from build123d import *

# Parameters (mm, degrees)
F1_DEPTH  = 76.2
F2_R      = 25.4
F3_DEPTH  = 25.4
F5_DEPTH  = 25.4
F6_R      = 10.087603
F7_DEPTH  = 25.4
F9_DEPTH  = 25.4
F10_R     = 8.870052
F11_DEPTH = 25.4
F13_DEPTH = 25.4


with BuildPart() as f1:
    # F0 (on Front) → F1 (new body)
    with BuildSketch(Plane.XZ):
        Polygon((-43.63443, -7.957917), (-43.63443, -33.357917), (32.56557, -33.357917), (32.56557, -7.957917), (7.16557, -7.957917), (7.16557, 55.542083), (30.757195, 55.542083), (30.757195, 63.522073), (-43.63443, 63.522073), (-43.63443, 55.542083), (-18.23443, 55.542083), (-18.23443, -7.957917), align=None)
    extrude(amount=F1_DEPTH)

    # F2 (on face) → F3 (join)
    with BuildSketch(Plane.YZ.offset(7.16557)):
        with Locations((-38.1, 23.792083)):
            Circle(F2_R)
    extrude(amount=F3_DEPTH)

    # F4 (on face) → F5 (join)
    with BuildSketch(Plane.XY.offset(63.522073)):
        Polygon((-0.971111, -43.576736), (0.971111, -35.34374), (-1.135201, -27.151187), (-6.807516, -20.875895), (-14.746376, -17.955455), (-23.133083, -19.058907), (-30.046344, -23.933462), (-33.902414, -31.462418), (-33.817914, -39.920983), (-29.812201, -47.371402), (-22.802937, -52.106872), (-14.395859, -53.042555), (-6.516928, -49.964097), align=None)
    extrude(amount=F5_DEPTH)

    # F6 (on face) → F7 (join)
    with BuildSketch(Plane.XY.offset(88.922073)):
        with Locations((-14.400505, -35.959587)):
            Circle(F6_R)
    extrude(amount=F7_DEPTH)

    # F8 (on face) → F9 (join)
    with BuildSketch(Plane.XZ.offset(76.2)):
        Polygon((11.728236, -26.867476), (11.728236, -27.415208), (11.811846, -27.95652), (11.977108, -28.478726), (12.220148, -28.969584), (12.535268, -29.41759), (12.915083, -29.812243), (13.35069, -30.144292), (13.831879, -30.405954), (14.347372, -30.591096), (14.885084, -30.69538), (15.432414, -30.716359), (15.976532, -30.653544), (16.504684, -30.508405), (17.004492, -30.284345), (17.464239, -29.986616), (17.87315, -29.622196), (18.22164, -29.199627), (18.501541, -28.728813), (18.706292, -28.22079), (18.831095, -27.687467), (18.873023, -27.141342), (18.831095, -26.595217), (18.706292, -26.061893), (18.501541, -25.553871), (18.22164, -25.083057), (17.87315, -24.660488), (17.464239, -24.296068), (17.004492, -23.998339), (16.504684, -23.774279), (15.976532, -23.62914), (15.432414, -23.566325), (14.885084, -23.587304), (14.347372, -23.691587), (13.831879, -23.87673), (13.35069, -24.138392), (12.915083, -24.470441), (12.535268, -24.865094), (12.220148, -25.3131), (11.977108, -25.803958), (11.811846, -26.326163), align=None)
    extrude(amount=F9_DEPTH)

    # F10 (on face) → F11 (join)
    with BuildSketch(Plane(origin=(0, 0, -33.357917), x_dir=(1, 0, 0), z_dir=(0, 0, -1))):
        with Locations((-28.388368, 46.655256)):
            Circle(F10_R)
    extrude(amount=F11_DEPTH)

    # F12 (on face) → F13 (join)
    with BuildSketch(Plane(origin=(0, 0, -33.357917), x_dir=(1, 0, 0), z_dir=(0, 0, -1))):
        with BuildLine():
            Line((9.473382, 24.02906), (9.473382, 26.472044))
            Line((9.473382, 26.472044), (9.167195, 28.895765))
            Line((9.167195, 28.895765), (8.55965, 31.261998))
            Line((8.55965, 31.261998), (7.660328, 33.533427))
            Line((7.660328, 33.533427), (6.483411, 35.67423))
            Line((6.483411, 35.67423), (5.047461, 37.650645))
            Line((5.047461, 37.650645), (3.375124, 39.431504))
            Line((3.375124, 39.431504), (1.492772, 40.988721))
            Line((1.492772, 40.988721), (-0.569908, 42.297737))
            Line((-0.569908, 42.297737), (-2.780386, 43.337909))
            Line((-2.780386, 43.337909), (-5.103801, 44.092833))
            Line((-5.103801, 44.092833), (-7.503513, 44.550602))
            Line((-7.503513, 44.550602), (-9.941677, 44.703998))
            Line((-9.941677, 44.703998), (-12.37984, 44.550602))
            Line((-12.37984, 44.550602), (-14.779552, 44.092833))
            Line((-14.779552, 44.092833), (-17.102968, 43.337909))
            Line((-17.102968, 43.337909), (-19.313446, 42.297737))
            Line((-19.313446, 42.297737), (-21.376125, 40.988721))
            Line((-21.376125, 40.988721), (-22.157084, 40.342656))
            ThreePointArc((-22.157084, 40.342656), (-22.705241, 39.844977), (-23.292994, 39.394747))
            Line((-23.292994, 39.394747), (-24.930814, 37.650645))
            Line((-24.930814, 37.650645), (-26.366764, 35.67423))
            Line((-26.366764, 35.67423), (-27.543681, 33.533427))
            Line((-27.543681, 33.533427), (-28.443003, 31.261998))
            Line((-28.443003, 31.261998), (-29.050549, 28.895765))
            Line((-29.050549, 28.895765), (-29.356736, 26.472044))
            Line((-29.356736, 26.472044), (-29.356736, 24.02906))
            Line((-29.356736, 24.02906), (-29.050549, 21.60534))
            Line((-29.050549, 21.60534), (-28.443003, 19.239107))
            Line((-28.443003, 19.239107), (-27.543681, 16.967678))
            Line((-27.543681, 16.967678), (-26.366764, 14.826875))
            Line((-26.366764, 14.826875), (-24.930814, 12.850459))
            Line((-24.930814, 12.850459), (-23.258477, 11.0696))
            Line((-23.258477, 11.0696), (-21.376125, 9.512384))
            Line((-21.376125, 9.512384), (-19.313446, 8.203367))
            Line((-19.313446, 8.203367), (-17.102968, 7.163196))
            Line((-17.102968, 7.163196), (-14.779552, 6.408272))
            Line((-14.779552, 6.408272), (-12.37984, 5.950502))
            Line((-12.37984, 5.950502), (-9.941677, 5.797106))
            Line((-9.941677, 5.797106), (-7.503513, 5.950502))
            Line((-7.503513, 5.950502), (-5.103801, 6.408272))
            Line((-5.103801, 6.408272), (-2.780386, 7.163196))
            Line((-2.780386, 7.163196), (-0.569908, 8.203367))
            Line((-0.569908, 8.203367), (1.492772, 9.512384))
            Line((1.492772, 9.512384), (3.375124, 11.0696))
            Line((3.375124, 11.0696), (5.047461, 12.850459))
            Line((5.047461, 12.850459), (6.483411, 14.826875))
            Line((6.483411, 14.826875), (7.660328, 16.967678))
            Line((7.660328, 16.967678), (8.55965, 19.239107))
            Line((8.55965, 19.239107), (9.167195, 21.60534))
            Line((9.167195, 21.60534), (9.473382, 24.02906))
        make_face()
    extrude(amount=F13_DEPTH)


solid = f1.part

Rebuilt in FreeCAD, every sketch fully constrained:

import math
import FreeCAD as App
import Part
import Sketcher
from FreeCAD import Vector
Q = App.Units.Quantity

doc = App.newDocument("Part")
body = doc.addObject("PartDesign::Body", "Body")

# Sketch on XZ plane
sketch1 = body.newObject("Sketcher::SketchObject", "Sketch")
sketch1.AttachmentSupport = (doc.getObject("XZ_Plane"), [""])
sketch1.MapMode = "FlatFace"
sketch1.addGeometry([
    Part.LineSegment(Vector(-43.63443, -7.957917, 0), Vector(-43.63443, -33.357917, 0)),  # 0
    Part.LineSegment(Vector(-43.63443, -33.357917, 0), Vector(32.56557, -33.357917, 0)),  # 1
    Part.LineSegment(Vector(32.56557, -33.357917, 0), Vector(32.56557, -7.957917, 0)),  # 2
    Part.LineSegment(Vector(32.56557, -7.957917, 0), Vector(7.16557, -7.957917, 0)),  # 3
    Part.LineSegment(Vector(7.16557, -7.957917, 0), Vector(7.16557, 55.542083, 0)),  # 4
    Part.LineSegment(Vector(7.16557, 55.542083, 0), Vector(30.757195, 55.542083, 0)),  # 5
    Part.LineSegment(Vector(30.757195, 55.542083, 0), Vector(30.757195, 63.522073, 0)),  # 6
    Part.LineSegment(Vector(30.757195, 63.522073, 0), Vector(-43.63443, 63.522073, 0)),  # 7
    Part.LineSegment(Vector(-43.63443, 63.522073, 0), Vector(-43.63443, 55.542083, 0)),  # 8
    Part.LineSegment(Vector(-43.63443, 55.542083, 0), Vector(-18.23443, 55.542083, 0)),  # 9
    Part.LineSegment(Vector(-18.23443, 55.542083, 0), Vector(-18.23443, -7.957917, 0)),  # 10
    Part.LineSegment(Vector(-18.23443, -7.957917, 0), Vector(-43.63443, -7.957917, 0)),  # 11
], False)
sketch1.addConstraint([
    Sketcher.Constraint("Coincident", 0, 2, 1, 1),
    Sketcher.Constraint("Coincident", 1, 2, 2, 1),
    Sketcher.Constraint("Coincident", 2, 2, 3, 1),
    Sketcher.Constraint("Coincident", 3, 2, 4, 1),
    Sketcher.Constraint("Coincident", 4, 2, 5, 1),
    Sketcher.Constraint("Coincident", 5, 2, 6, 1),
    Sketcher.Constraint("Coincident", 6, 2, 7, 1),
    Sketcher.Constraint("Coincident", 7, 2, 8, 1),
    Sketcher.Constraint("Coincident", 8, 2, 9, 1),
    Sketcher.Constraint("Coincident", 9, 2, 10, 1),
    Sketcher.Constraint("Coincident", 10, 2, 11, 1),
    Sketcher.Constraint("Coincident", 11, 2, 0, 1),
    Sketcher.Constraint("Vertical", 0),
    Sketcher.Constraint("Horizontal", 1),
    Sketcher.Constraint("Vertical", 2),
    Sketcher.Constraint("Horizontal", 3),
    Sketcher.Constraint("Vertical", 4),
    Sketcher.Constraint("Horizontal", 5),
    Sketcher.Constraint("Vertical", 6),
    Sketcher.Constraint("Horizontal", 7),
    Sketcher.Constraint("Vertical", 8),
    Sketcher.Constraint("Horizontal", 9),
    Sketcher.Constraint("Vertical", 10),
    Sketcher.Constraint("Horizontal", 11),
    Sketcher.Constraint("Horizontal", 5, 2, 8, 2),
    Sketcher.Constraint("Horizontal", 3, 2, 10, 2),
    Sketcher.Constraint("Vertical", 0, 2, 7, 2),
    Sketcher.Constraint("Equal", 3, 9),
    Sketcher.Constraint("Equal", 11, 0),
    Sketcher.Constraint("DistanceX", 1, 1, 1, 2, Q("3 in")),
    Sketcher.Constraint("DistanceX", 3, 2, 3, 1, Q("1 in")),
    Sketcher.Constraint("DistanceY", 4, 1, 4, 2, Q("2.5 in")),
    Sketcher.Constraint("DistanceY", 6, 1, 6, 2, Q("7.97999 mm")),
    Sketcher.Constraint("DistanceX", 5, 1, 5, 2, Q("23.591625 mm")),
    Sketcher.Constraint("DistanceX", 0, 2, -1, 1, Q("43.63443 mm")),
    Sketcher.Constraint("DistanceY", 0, 2, -1, 1, Q("33.357917 mm")),
])
pad1 = body.newObject("PartDesign::Pad", "Pad")
pad1.Profile = sketch1
pad1.Length = Q("3 in")

# Sketch on YZ plane
sketch2 = body.newObject("Sketcher::SketchObject", "Sketch001")
sketch2.AttachmentSupport = (doc.getObject("YZ_Plane"), [""])
sketch2.MapMode = "FlatFace"
sketch2.AttachmentOffset = App.Placement(Vector(0, 0, 7.16557), App.Rotation())
sketch2.addGeometry(Part.Circle(Vector(-38.1, 23.792083, 0), Vector(0, 0, 1), 25.4), False)
sketch2.addConstraint([
    Sketcher.Constraint("Diameter", 0, Q("2 in")),
    Sketcher.Constraint("DistanceX", 0, 3, -1, 1, Q("1.5 in")),
    Sketcher.Constraint("DistanceY", -1, 1, 0, 3, Q("23.792083 mm")),
])
pad2 = body.newObject("PartDesign::Pad", "Pad001")
pad2.Profile = sketch2
pad2.Length = Q("1 in")

# Sketch on XY plane
sketch3 = body.newObject("Sketcher::SketchObject", "Sketch002")
sketch3.AttachmentSupport = (doc.getObject("XY_Plane"), [""])
sketch3.MapMode = "FlatFace"
sketch3.AttachmentOffset = App.Placement(Vector(0, 0, 63.522073), App.Rotation())
sketch3.addGeometry([
    Part.LineSegment(Vector(-0.971111, -43.576736, 0), Vector(0.971111, -35.34374, 0)),  # 0
    Part.LineSegment(Vector(0.971111, -35.34374, 0), Vector(-1.135201, -27.151187, 0)),  # 1
    Part.LineSegment(Vector(-1.135201, -27.151187, 0), Vector(-6.807516, -20.875895, 0)),  # 2
    Part.LineSegment(Vector(-6.807516, -20.875895, 0), Vector(-14.746376, -17.955455, 0)),  # 3
    Part.LineSegment(Vector(-14.746376, -17.955455, 0), Vector(-23.133083, -19.058907, 0)),  # 4
    Part.LineSegment(Vector(-23.133083, -19.058907, 0), Vector(-30.046344, -23.933462, 0)),  # 5
    Part.LineSegment(Vector(-30.046344, -23.933462, 0), Vector(-33.902414, -31.462418, 0)),  # 6
    Part.LineSegment(Vector(-33.902414, -31.462418, 0), Vector(-33.817914, -39.920983, 0)),  # 7
    Part.LineSegment(Vector(-33.817914, -39.920983, 0), Vector(-29.812201, -47.371402, 0)),  # 8
    Part.LineSegment(Vector(-29.812201, -47.371402, 0), Vector(-22.802937, -52.106872, 0)),  # 9
    Part.LineSegment(Vector(-22.802937, -52.106872, 0), Vector(-14.395859, -53.042555, 0)),  # 10
    Part.LineSegment(Vector(-14.395859, -53.042555, 0), Vector(-6.516928, -49.964097, 0)),  # 11
    Part.LineSegment(Vector(-6.516928, -49.964097, 0), Vector(-0.971111, -43.576736, 0)),  # 12
], False)
sketch3.addConstraint([
    Sketcher.Constraint("Coincident", 0, 2, 1, 1),
    Sketcher.Constraint("Coincident", 1, 2, 2, 1),
    Sketcher.Constraint("Coincident", 2, 2, 3, 1),
    Sketcher.Constraint("Coincident", 3, 2, 4, 1),
    Sketcher.Constraint("Coincident", 4, 2, 5, 1),
    Sketcher.Constraint("Coincident", 5, 2, 6, 1),
    Sketcher.Constraint("Coincident", 6, 2, 7, 1),
    Sketcher.Constraint("Coincident", 7, 2, 8, 1),
    Sketcher.Constraint("Coincident", 8, 2, 9, 1),
    Sketcher.Constraint("Coincident", 9, 2, 10, 1),
    Sketcher.Constraint("Coincident", 10, 2, 11, 1),
    Sketcher.Constraint("Coincident", 11, 2, 12, 1),
    Sketcher.Constraint("Coincident", 12, 2, 0, 1),
    Sketcher.Constraint("DistanceY", 0, 2, 2, 2, Q("0.5696002 in")),
    Sketcher.Constraint("DistanceX", 1, 2, -1, 1, Q("1.135201 mm")),
    Sketcher.Constraint("DistanceX", 8, 2, -1, 1, Q("29.812201 mm")),
    Sketcher.Constraint("DistanceX", 6, 2, 2, 2, Q("27.094898 mm")),
    Sketcher.Constraint("DistanceX", 6, 2, 7, 2, Q("0.0845 mm")),
    Sketcher.Constraint("Distance", 8, Q("8.458988 mm")),
    Sketcher.Constraint("DistanceX", -1, 1, 0, 2, Q("0.971111 mm")),
    Sketcher.Constraint("DistanceY", 0, 2, -1, 1, Q("35.34374 mm")),
    Sketcher.Constraint("DistanceY", 5, 2, -1, 1, Q("23.933462 mm")),
    Sketcher.Constraint("DistanceX", 10, 2, -1, 1, Q("14.395859 mm")),
    Sketcher.Constraint("DistanceX", 12, 2, -1, 1, Q("0.971111 mm")),
    Sketcher.Constraint("DistanceX", 3, 2, 2, 2, Q("7.93886 mm")),
    Sketcher.Constraint("DistanceY", 2, 2, 3, 2, Q("2.92044 mm")),
    Sketcher.Constraint("DistanceY", 1, 2, 4, 2, Q("8.09228 mm")),
    Sketcher.Constraint("DistanceX", 5, 2, 4, 2, Q("6.913261 mm")),
    Sketcher.Constraint("DistanceX", 5, 2, 3, 2, Q("15.299968 mm")),
    Sketcher.Constraint("DistanceY", 6, 2, 4, 2, Q("12.403511 mm")),
    Sketcher.Constraint("DistanceY", 7, 2, 5, 2, Q("15.987521 mm")),
    Sketcher.Constraint("DistanceY", 8, 2, 7, 2, Q("7.450419 mm")),
    Sketcher.Constraint("DistanceY", 9, 2, 8, 2, Q("4.73547 mm")),
    Sketcher.Constraint("DistanceX", 9, 2, 0, 2, Q("23.774048 mm")),
    Sketcher.Constraint("DistanceY", 10, 2, 1, 2, Q("25.891368 mm")),
    Sketcher.Constraint("DistanceX", 10, 2, 11, 2, Q("7.878931 mm")),
    Sketcher.Constraint("DistanceY", 11, 2, 1, 2, Q("22.81291 mm")),
    Sketcher.Constraint("DistanceY", 11, 2, 12, 2, Q("6.387361 mm")),
    Sketcher.Constraint("DistanceY", 12, 2, 2, 2, Q("22.700841 mm")),
])
pad3 = body.newObject("PartDesign::Pad", "Pad002")
pad3.Profile = sketch3
pad3.Length = Q("1 in")

# Sketch on XY plane
sketch4 = body.newObject("Sketcher::SketchObject", "Sketch003")
sketch4.AttachmentSupport = (doc.getObject("XY_Plane"), [""])
sketch4.MapMode = "FlatFace"
sketch4.AttachmentOffset = App.Placement(Vector(0, 0, 88.922073), App.Rotation())
sketch4.addGeometry(Part.Circle(Vector(-14.400505, -35.959587, 0), Vector(0, 0, 1), 10.087603), False)
sketch4.addConstraint([
    Sketcher.Constraint("Diameter", 0, Q("20.175206 mm")),
    Sketcher.Constraint("DistanceX", 0, 3, -1, 1, Q("14.400505 mm")),
    Sketcher.Constraint("DistanceY", 0, 3, -1, 1, Q("35.959587 mm")),
])
pad4 = body.newObject("PartDesign::Pad", "Pad003")
pad4.Profile = sketch4
pad4.Length = Q("1 in")

# Sketch on XZ plane
sketch5 = body.newObject("Sketcher::SketchObject", "Sketch004")
sketch5.AttachmentSupport = (doc.getObject("XZ_Plane"), [""])
sketch5.MapMode = "FlatFace"
sketch5.AttachmentOffset = App.Placement(Vector(0, 0, 3 * 25.4), App.Rotation())
sketch5.addGeometry([
    Part.LineSegment(Vector(11.728236, -26.867476, 0), Vector(11.728236, -27.415208, 0)),  # 0
    Part.LineSegment(Vector(11.728236, -27.415208, 0), Vector(11.811846, -27.95652, 0)),  # 1
    Part.LineSegment(Vector(11.811846, -27.95652, 0), Vector(11.977108, -28.478726, 0)),  # 2
    Part.LineSegment(Vector(11.977108, -28.478726, 0), Vector(12.220148, -28.969584, 0)),  # 3
    Part.LineSegment(Vector(12.220148, -28.969584, 0), Vector(12.535268, -29.41759, 0)),  # 4
    Part.LineSegment(Vector(12.535268, -29.41759, 0), Vector(12.915083, -29.812243, 0)),  # 5
    Part.LineSegment(Vector(12.915083, -29.812243, 0), Vector(13.35069, -30.144292, 0)),  # 6
    Part.LineSegment(Vector(13.35069, -30.144292, 0), Vector(13.831879, -30.405954, 0)),  # 7
    Part.LineSegment(Vector(13.831879, -30.405954, 0), Vector(14.347372, -30.591096, 0)),  # 8
    Part.LineSegment(Vector(14.347372, -30.591096, 0), Vector(14.885084, -30.69538, 0)),  # 9
    Part.LineSegment(Vector(14.885084, -30.69538, 0), Vector(15.432414, -30.716359, 0)),  # 10
    Part.LineSegment(Vector(15.432414, -30.716359, 0), Vector(15.976532, -30.653544, 0)),  # 11
    Part.LineSegment(Vector(15.976532, -30.653544, 0), Vector(16.504684, -30.508405, 0)),  # 12
    Part.LineSegment(Vector(16.504684, -30.508405, 0), Vector(17.004492, -30.284345, 0)),  # 13
    Part.LineSegment(Vector(17.004492, -30.284345, 0), Vector(17.464239, -29.986616, 0)),  # 14
    Part.LineSegment(Vector(17.464239, -29.986616, 0), Vector(17.87315, -29.622196, 0)),  # 15
    Part.LineSegment(Vector(17.87315, -29.622196, 0), Vector(18.22164, -29.199627, 0)),  # 16
    Part.LineSegment(Vector(18.22164, -29.199627, 0), Vector(18.501541, -28.728813, 0)),  # 17
    Part.LineSegment(Vector(18.501541, -28.728813, 0), Vector(18.706292, -28.22079, 0)),  # 18
    Part.LineSegment(Vector(18.706292, -28.22079, 0), Vector(18.831095, -27.687467, 0)),  # 19
    Part.LineSegment(Vector(18.831095, -27.687467, 0), Vector(18.873023, -27.141342, 0)),  # 20
    Part.LineSegment(Vector(18.873023, -27.141342, 0), Vector(18.831095, -26.595217, 0)),  # 21
    Part.LineSegment(Vector(18.831095, -26.595217, 0), Vector(18.706292, -26.061893, 0)),  # 22
    Part.LineSegment(Vector(18.706292, -26.061893, 0), Vector(18.501541, -25.553871, 0)),  # 23
    Part.LineSegment(Vector(18.501541, -25.553871, 0), Vector(18.22164, -25.083057, 0)),  # 24
    Part.LineSegment(Vector(18.22164, -25.083057, 0), Vector(17.87315, -24.660488, 0)),  # 25
    Part.LineSegment(Vector(17.87315, -24.660488, 0), Vector(17.464239, -24.296068, 0)),  # 26
    Part.LineSegment(Vector(17.464239, -24.296068, 0), Vector(17.004492, -23.998339, 0)),  # 27
    Part.LineSegment(Vector(17.004492, -23.998339, 0), Vector(16.504684, -23.774279, 0)),  # 28
    Part.LineSegment(Vector(16.504684, -23.774279, 0), Vector(15.976532, -23.62914, 0)),  # 29
    Part.LineSegment(Vector(15.976532, -23.62914, 0), Vector(15.432414, -23.566325, 0)),  # 30
    Part.LineSegment(Vector(15.432414, -23.566325, 0), Vector(14.885084, -23.587304, 0)),  # 31
    Part.LineSegment(Vector(14.885084, -23.587304, 0), Vector(14.347372, -23.691587, 0)),  # 32
    Part.LineSegment(Vector(14.347372, -23.691587, 0), Vector(13.831879, -23.87673, 0)),  # 33
    Part.LineSegment(Vector(13.831879, -23.87673, 0), Vector(13.35069, -24.138392, 0)),  # 34
    Part.LineSegment(Vector(13.35069, -24.138392, 0), Vector(12.915083, -24.470441, 0)),  # 35
    Part.LineSegment(Vector(12.915083, -24.470441, 0), Vector(12.535268, -24.865094, 0)),  # 36
    Part.LineSegment(Vector(12.535268, -24.865094, 0), Vector(12.220148, -25.3131, 0)),  # 37
    Part.LineSegment(Vector(12.220148, -25.3131, 0), Vector(11.977108, -25.803958, 0)),  # 38
    Part.LineSegment(Vector(11.977108, -25.803958, 0), Vector(11.811846, -26.326163, 0)),  # 39
    Part.LineSegment(Vector(11.811846, -26.326163, 0), Vector(11.728236, -26.867476, 0)),  # 40
], False)
sketch5.addConstraint([
    Sketcher.Constraint("Coincident", 0, 2, 1, 1),
    Sketcher.Constraint("Coincident", 1, 2, 2, 1),
    Sketcher.Constraint("Coincident", 2, 2, 3, 1),
    Sketcher.Constraint("Coincident", 3, 2, 4, 1),
    Sketcher.Constraint("Coincident", 4, 2, 5, 1),
    Sketcher.Constraint("Coincident", 5, 2, 6, 1),
    Sketcher.Constraint("Coincident", 6, 2, 7, 1),
    Sketcher.Constraint("Coincident", 7, 2, 8, 1),
    Sketcher.Constraint("Coincident", 8, 2, 9, 1),
    Sketcher.Constraint("Coincident", 9, 2, 10, 1),
    Sketcher.Constraint("Coincident", 10, 2, 11, 1),
    Sketcher.Constraint("Coincident", 11, 2, 12, 1),
    Sketcher.Constraint("Coincident", 12, 2, 13, 1),
    Sketcher.Constraint("Coincident", 13, 2, 14, 1),
    Sketcher.Constraint("Coincident", 14, 2, 15, 1),
    Sketcher.Constraint("Coincident", 15, 2, 16, 1),
    Sketcher.Constraint("Coincident", 16, 2, 17, 1),
    Sketcher.Constraint("Coincident", 17, 2, 18, 1),
    Sketcher.Constraint("Coincident", 18, 2, 19, 1),
    Sketcher.Constraint("Coincident", 19, 2, 20, 1),
    Sketcher.Constraint("Coincident", 20, 2, 21, 1),
    Sketcher.Constraint("Coincident", 21, 2, 22, 1),
    Sketcher.Constraint("Coincident", 22, 2, 23, 1),
    Sketcher.Constraint("Coincident", 23, 2, 24, 1),
    Sketcher.Constraint("Coincident", 24, 2, 25, 1),
    Sketcher.Constraint("Coincident", 25, 2, 26, 1),
    Sketcher.Constraint("Coincident", 26, 2, 27, 1),
    Sketcher.Constraint("Coincident", 27, 2, 28, 1),
    Sketcher.Constraint("Coincident", 28, 2, 29, 1),
    Sketcher.Constraint("Coincident", 29, 2, 30, 1),
    Sketcher.Constraint("Coincident", 30, 2, 31, 1),
    Sketcher.Constraint("Coincident", 31, 2, 32, 1),
    Sketcher.Constraint("Coincident", 32, 2, 33, 1),
    Sketcher.Constraint("Coincident", 33, 2, 34, 1),
    Sketcher.Constraint("Coincident", 34, 2, 35, 1),
    Sketcher.Constraint("Coincident", 35, 2, 36, 1),
    Sketcher.Constraint("Coincident", 36, 2, 37, 1),
    Sketcher.Constraint("Coincident", 37, 2, 38, 1),
    Sketcher.Constraint("Coincident", 38, 2, 39, 1),
    Sketcher.Constraint("Coincident", 39, 2, 40, 1),
    Sketcher.Constraint("Coincident", 40, 2, 0, 1),
    Sketcher.Constraint("Vertical", 0),
    Sketcher.Constraint("DistanceX", 13, 2, 18, 2, Q("0.067 in")),
    Sketcher.Constraint("DistanceY", 17, 2, 21, 2, Q("0.0839998 in")),
    Sketcher.Constraint("DistanceY", 19, 2, 23, 2, Q("0.0839998 in")),
    Sketcher.Constraint("DistanceX", 27, 2, 22, 2, Q("0.067 in")),
    Sketcher.Constraint("DistanceY", 0, 2, 0, 1, Q("0.547732 mm")),
    Sketcher.Constraint("DistanceY", 37, 2, -1, 1, Q("25.3131 mm")),
    Sketcher.Constraint("DistanceY", 6, 2, 4, 2, Q("0.726702 mm")),
    Sketcher.Constraint("DistanceX", 5, 2, 9, 2, Q("1.970001 mm")),
    Sketcher.Constraint("DistanceX", 9, 2, 12, 2, Q("1.6196 mm")),
    Sketcher.Constraint("DistanceY", 11, 2, 13, 2, Q("0.369199 mm")),
    Sketcher.Constraint("DistanceX", 14, 2, 16, 2, Q("0.757401 mm")),
    Sketcher.Constraint("DistanceX", 16, 2, 17, 2, Q("0.279901 mm")),
    Sketcher.Constraint("DistanceX", 24, 2, 23, 2, Q("0.279901 mm")),
    Sketcher.Constraint("DistanceX", 26, 2, 24, 2, Q("0.757401 mm")),
    Sketcher.Constraint("DistanceY", 27, 2, 29, 2, Q("0.369199 mm")),
    Sketcher.Constraint("DistanceX", 31, 2, 28, 2, Q("1.6196 mm")),
    Sketcher.Constraint("DistanceX", 35, 2, 31, 2, Q("1.970001 mm")),
    Sketcher.Constraint("DistanceY", 36, 2, 34, 2, Q("0.726702 mm")),
    Sketcher.Constraint("Distance", 1, Q("0.547731 mm")),
    Sketcher.Constraint("Distance", 3, Q("0.547732 mm")),
    Sketcher.Constraint("Distance", 4, Q("0.547732 mm")),
    Sketcher.Constraint("Distance", 6, Q("0.547732 mm")),
    Sketcher.Constraint("Distance", 7, Q("0.547732 mm")),
    Sketcher.Constraint("Distance", 9, Q("0.547731 mm")),
    Sketcher.Constraint("Distance", 10, Q("0.547732 mm")),
    Sketcher.Constraint("Distance", 11, Q("0.547732 mm")),
    Sketcher.Constraint("Distance", 12, Q("0.547732 mm")),
    Sketcher.Constraint("Distance", 14, Q("0.547732 mm")),
    Sketcher.Constraint("Distance", 15, Q("0.547732 mm")),
    Sketcher.Constraint("Distance", 16, Q("0.547732 mm")),
    Sketcher.Constraint("Distance", 18, Q("0.547732 mm")),
    Sketcher.Constraint("Distance", 19, Q("0.547731 mm")),
    Sketcher.Constraint("Distance", 22, Q("0.547732 mm")),
    Sketcher.Constraint("Distance", 23, Q("0.547731 mm")),
    Sketcher.Constraint("Distance", 25, Q("0.547732 mm")),
    Sketcher.Constraint("Distance", 26, Q("0.547732 mm")),
    Sketcher.Constraint("Distance", 27, Q("0.547732 mm")),
    Sketcher.Constraint("Distance", 29, Q("0.547732 mm")),
    Sketcher.Constraint("Distance", 30, Q("0.547732 mm")),
    Sketcher.Constraint("Distance", 31, Q("0.547732 mm")),
    Sketcher.Constraint("Distance", 32, Q("0.547731 mm")),
    Sketcher.Constraint("Distance", 34, Q("0.547732 mm")),
    Sketcher.Constraint("Distance", 35, Q("0.547732 mm")),
    Sketcher.Constraint("Distance", 37, Q("0.547732 mm")),
    Sketcher.Constraint("Distance", 38, Q("0.547732 mm")),
    Sketcher.Constraint("Distance", 39, Q("0.547731 mm")),
    Sketcher.Constraint("DistanceY", 0, 2, -1, 1, Q("27.415208 mm")),
    Sketcher.Constraint("DistanceY", 1, 2, -1, 1, Q("27.95652 mm")),
    Sketcher.Constraint("DistanceY", 4, 2, -1, 1, Q("29.41759 mm")),
    Sketcher.Constraint("DistanceX", -1, 1, 6, 2, Q("13.35069 mm")),
    Sketcher.Constraint("DistanceX", -1, 1, 7, 2, Q("13.831879 mm")),
    Sketcher.Constraint("DistanceY", 9, 2, -1, 1, Q("30.69538 mm")),
    Sketcher.Constraint("DistanceY", 10, 2, -1, 1, Q("30.716359 mm")),
    Sketcher.Constraint("DistanceX", -1, 1, 13, 2, Q("17.004492 mm")),
    Sketcher.Constraint("DistanceX", -1, 1, 14, 2, Q("17.464239 mm")),
    Sketcher.Constraint("DistanceX", -1, 1, 15, 2, Q("17.87315 mm")),
    Sketcher.Constraint("DistanceY", 18, 2, -1, 1, Q("28.22079 mm")),
    Sketcher.Constraint("DistanceX", -1, 1, 23, 2, Q("18.501541 mm")),
    Sketcher.Constraint("DistanceY", 23, 2, -1, 1, Q("25.553871 mm")),
    Sketcher.Constraint("DistanceX", -1, 1, 25, 2, Q("17.87315 mm")),
    Sketcher.Constraint("DistanceY", 25, 2, -1, 1, Q("24.660488 mm")),
    Sketcher.Constraint("DistanceX", -1, 1, 27, 2, Q("17.004492 mm")),
    Sketcher.Constraint("DistanceY", 28, 2, -1, 1, Q("23.774279 mm")),
    Sketcher.Constraint("DistanceX", -1, 1, 33, 2, Q("13.831879 mm")),
    Sketcher.Constraint("DistanceY", 33, 2, -1, 1, Q("23.87673 mm")),
    Sketcher.Constraint("DistanceX", -1, 1, 34, 2, Q("13.35069 mm")),
    Sketcher.Constraint("DistanceY", 35, 2, -1, 1, Q("24.470441 mm")),
    Sketcher.Constraint("DistanceY", 38, 2, -1, 1, Q("25.803958 mm")),
    Sketcher.Constraint("DistanceX", 0, 2, 2, 2, Q("0.248872 mm")),
    Sketcher.Constraint("DistanceY", 2, 2, 0, 2, Q("1.063518 mm")),
    Sketcher.Constraint("DistanceX", 2, 2, 3, 2, Q("0.24304 mm")),
    Sketcher.Constraint("DistanceY", 5, 2, 3, 2, Q("0.842659 mm")),
    Sketcher.Constraint("DistanceX", 4, 2, 6, 2, Q("0.815422 mm")),
    Sketcher.Constraint("DistanceY", 8, 2, 7, 2, Q("0.185142 mm")),
    Sketcher.Constraint("DistanceX", 10, 2, 11, 2, Q("0.544118 mm")),
    Sketcher.Constraint("DistanceX", 18, 2, 20, 2, Q("0.166731 mm")),
    Sketcher.Constraint("DistanceY", 17, 2, 20, 2, Q("1.587471 mm")),
    Sketcher.Constraint("DistanceX", 30, 2, 29, 2, Q("0.544118 mm")),
    Sketcher.Constraint("DistanceX", 32, 2, 30, 2, Q("1.085042 mm")),
    Sketcher.Constraint("DistanceX", 36, 2, 34, 2, Q("0.815422 mm")),
    Sketcher.Constraint("DistanceX", 0, 2, 39, 2, Q("0.08361 mm")),
])
pad5 = body.newObject("PartDesign::Pad", "Pad004")
pad5.Profile = sketch5
pad5.Length = Q("1 in")

# Sketch on XY plane
sketch6 = body.newObject("Sketcher::SketchObject", "Sketch005")
sketch6.AttachmentSupport = (doc.getObject("XY_Plane"), [""])
sketch6.MapMode = "FlatFace"
sketch6.AttachmentOffset = App.Placement(Vector(0, 0, -33.357917), App.Rotation())
sketch6.addGeometry(Part.Circle(Vector(-28.388368, -46.655256, 0), Vector(0, 0, 1), 8.870052), False)
sketch6.addConstraint([
    Sketcher.Constraint("Diameter", 0, Q("17.740104 mm")),
    Sketcher.Constraint("DistanceX", 0, 3, -1, 1, Q("28.388368 mm")),
    Sketcher.Constraint("DistanceY", 0, 3, -1, 1, Q("46.655256 mm")),
])
pad6 = body.newObject("PartDesign::Pad", "Pad005")
pad6.Profile = sketch6
pad6.Length = Q("1 in")
pad6.Reversed = True

# Sketch on XY plane
sketch7 = body.newObject("Sketcher::SketchObject", "Sketch006")
sketch7.AttachmentSupport = (doc.getObject("XY_Plane"), [""])
sketch7.MapMode = "FlatFace"
sketch7.AttachmentOffset = App.Placement(Vector(0, 0, -33.357917), App.Rotation())
sketch7.addGeometry([
    Part.LineSegment(Vector(9.473382, -24.02906, 0), Vector(9.473382, -26.472044, 0)),  # 0
    Part.LineSegment(Vector(9.473382, -26.472044, 0), Vector(9.167195, -28.895765, 0)),  # 1
    Part.LineSegment(Vector(9.167195, -28.895765, 0), Vector(8.55965, -31.261998, 0)),  # 2
    Part.LineSegment(Vector(8.55965, -31.261998, 0), Vector(7.660328, -33.533427, 0)),  # 3
    Part.LineSegment(Vector(7.660328, -33.533427, 0), Vector(6.483411, -35.67423, 0)),  # 4
    Part.LineSegment(Vector(6.483411, -35.67423, 0), Vector(5.047461, -37.650645, 0)),  # 5
    Part.LineSegment(Vector(5.047461, -37.650645, 0), Vector(3.375124, -39.431504, 0)),  # 6
    Part.LineSegment(Vector(3.375124, -39.431504, 0), Vector(1.492772, -40.988721, 0)),  # 7
    Part.LineSegment(Vector(1.492772, -40.988721, 0), Vector(-0.569908, -42.297737, 0)),  # 8
    Part.LineSegment(Vector(-0.569908, -42.297737, 0), Vector(-2.780386, -43.337909, 0)),  # 9
    Part.LineSegment(Vector(-2.780386, -43.337909, 0), Vector(-5.103801, -44.092833, 0)),  # 10
    Part.LineSegment(Vector(-5.103801, -44.092833, 0), Vector(-7.503513, -44.550602, 0)),  # 11
    Part.LineSegment(Vector(-7.503513, -44.550602, 0), Vector(-9.941677, -44.703998, 0)),  # 12
    Part.LineSegment(Vector(-9.941677, -44.703998, 0), Vector(-12.37984, -44.550602, 0)),  # 13
    Part.LineSegment(Vector(-12.37984, -44.550602, 0), Vector(-14.779552, -44.092833, 0)),  # 14
    Part.LineSegment(Vector(-14.779552, -44.092833, 0), Vector(-17.102968, -43.337909, 0)),  # 15
    Part.LineSegment(Vector(-17.102968, -43.337909, 0), Vector(-19.313446, -42.297737, 0)),  # 16
    Part.LineSegment(Vector(-19.313446, -42.297737, 0), Vector(-21.376125, -40.988721, 0)),  # 17
    Part.LineSegment(Vector(-21.376125, -40.988721, 0), Vector(-22.157084, -40.342656, 0)),  # 18
    Part.ArcOfCircle(Part.Circle(Vector(-28.388272, -46.655137, 0), Vector(0, 0, 1), 8.869899), math.radians(45.371316), math.radians(54.939158)),  # 19
    Part.LineSegment(Vector(-23.292994, -39.394747, 0), Vector(-24.930814, -37.650645, 0)),  # 20
    Part.LineSegment(Vector(-24.930814, -37.650645, 0), Vector(-26.366764, -35.67423, 0)),  # 21
    Part.LineSegment(Vector(-26.366764, -35.67423, 0), Vector(-27.543681, -33.533427, 0)),  # 22
    Part.LineSegment(Vector(-27.543681, -33.533427, 0), Vector(-28.443003, -31.261998, 0)),  # 23
    Part.LineSegment(Vector(-28.443003, -31.261998, 0), Vector(-29.050549, -28.895765, 0)),  # 24
    Part.LineSegment(Vector(-29.050549, -28.895765, 0), Vector(-29.356736, -26.472044, 0)),  # 25
    Part.LineSegment(Vector(-29.356736, -26.472044, 0), Vector(-29.356736, -24.02906, 0)),  # 26
    Part.LineSegment(Vector(-29.356736, -24.02906, 0), Vector(-29.050549, -21.60534, 0)),  # 27
    Part.LineSegment(Vector(-29.050549, -21.60534, 0), Vector(-28.443003, -19.239107, 0)),  # 28
    Part.LineSegment(Vector(-28.443003, -19.239107, 0), Vector(-27.543681, -16.967678, 0)),  # 29
    Part.LineSegment(Vector(-27.543681, -16.967678, 0), Vector(-26.366764, -14.826875, 0)),  # 30
    Part.LineSegment(Vector(-26.366764, -14.826875, 0), Vector(-24.930814, -12.850459, 0)),  # 31
    Part.LineSegment(Vector(-24.930814, -12.850459, 0), Vector(-23.258477, -11.0696, 0)),  # 32
    Part.LineSegment(Vector(-23.258477, -11.0696, 0), Vector(-21.376125, -9.512384, 0)),  # 33
    Part.LineSegment(Vector(-21.376125, -9.512384, 0), Vector(-19.313446, -8.203367, 0)),  # 34
    Part.LineSegment(Vector(-19.313446, -8.203367, 0), Vector(-17.102968, -7.163196, 0)),  # 35
    Part.LineSegment(Vector(-17.102968, -7.163196, 0), Vector(-14.779552, -6.408272, 0)),  # 36
    Part.LineSegment(Vector(-14.779552, -6.408272, 0), Vector(-12.37984, -5.950502, 0)),  # 37
    Part.LineSegment(Vector(-12.37984, -5.950502, 0), Vector(-9.941677, -5.797106, 0)),  # 38
    Part.LineSegment(Vector(-9.941677, -5.797106, 0), Vector(-7.503513, -5.950502, 0)),  # 39
    Part.LineSegment(Vector(-7.503513, -5.950502, 0), Vector(-5.103801, -6.408272, 0)),  # 40
    Part.LineSegment(Vector(-5.103801, -6.408272, 0), Vector(-2.780386, -7.163196, 0)),  # 41
    Part.LineSegment(Vector(-2.780386, -7.163196, 0), Vector(-0.569908, -8.203367, 0)),  # 42
    Part.LineSegment(Vector(-0.569908, -8.203367, 0), Vector(1.492772, -9.512384, 0)),  # 43
    Part.LineSegment(Vector(1.492772, -9.512384, 0), Vector(3.375124, -11.0696, 0)),  # 44
    Part.LineSegment(Vector(3.375124, -11.0696, 0), Vector(5.047461, -12.850459, 0)),  # 45
    Part.LineSegment(Vector(5.047461, -12.850459, 0), Vector(6.483411, -14.826875, 0)),  # 46
    Part.LineSegment(Vector(6.483411, -14.826875, 0), Vector(7.660328, -16.967678, 0)),  # 47
    Part.LineSegment(Vector(7.660328, -16.967678, 0), Vector(8.55965, -19.239107, 0)),  # 48
    Part.LineSegment(Vector(8.55965, -19.239107, 0), Vector(9.167195, -21.60534, 0)),  # 49
    Part.LineSegment(Vector(9.167195, -21.60534, 0), Vector(9.473382, -24.02906, 0)),  # 50
], False)
sketch7.addConstraint([
    Sketcher.Constraint("Coincident", 0, 2, 1, 1),
    Sketcher.Constraint("Coincident", 1, 2, 2, 1),
    Sketcher.Constraint("Coincident", 2, 2, 3, 1),
    Sketcher.Constraint("Coincident", 3, 2, 4, 1),
    Sketcher.Constraint("Coincident", 4, 2, 5, 1),
    Sketcher.Constraint("Coincident", 5, 2, 6, 1),
    Sketcher.Constraint("Coincident", 6, 2, 7, 1),
    Sketcher.Constraint("Coincident", 7, 2, 8, 1),
    Sketcher.Constraint("Coincident", 8, 2, 9, 1),
    Sketcher.Constraint("Coincident", 9, 2, 10, 1),
    Sketcher.Constraint("Coincident", 10, 2, 11, 1),
    Sketcher.Constraint("Coincident", 11, 2, 12, 1),
    Sketcher.Constraint("Coincident", 12, 2, 13, 1),
    Sketcher.Constraint("Coincident", 13, 2, 14, 1),
    Sketcher.Constraint("Coincident", 14, 2, 15, 1),
    Sketcher.Constraint("Coincident", 15, 2, 16, 1),
    Sketcher.Constraint("Coincident", 16, 2, 17, 1),
    Sketcher.Constraint("Coincident", 17, 2, 18, 1),
    Sketcher.Constraint("Coincident", 18, 2, 19, 1),
    Sketcher.Constraint("Coincident", 19, 2, 20, 1),
    Sketcher.Constraint("Coincident", 20, 2, 21, 1),
    Sketcher.Constraint("Coincident", 21, 2, 22, 1),
    Sketcher.Constraint("Coincident", 22, 2, 23, 1),
    Sketcher.Constraint("Coincident", 23, 2, 24, 1),
    Sketcher.Constraint("Coincident", 24, 2, 25, 1),
    Sketcher.Constraint("Coincident", 25, 2, 26, 1),
    Sketcher.Constraint("Coincident", 26, 2, 27, 1),
    Sketcher.Constraint("Coincident", 27, 2, 28, 1),
    Sketcher.Constraint("Coincident", 28, 2, 29, 1),
    Sketcher.Constraint("Coincident", 29, 2, 30, 1),
    Sketcher.Constraint("Coincident", 30, 2, 31, 1),
    Sketcher.Constraint("Coincident", 31, 2, 32, 1),
    Sketcher.Constraint("Coincident", 32, 2, 33, 1),
    Sketcher.Constraint("Coincident", 33, 2, 34, 1),
    Sketcher.Constraint("Coincident", 34, 2, 35, 1),
    Sketcher.Constraint("Coincident", 35, 2, 36, 1),
    Sketcher.Constraint("Coincident", 36, 2, 37, 1),
    Sketcher.Constraint("Coincident", 37, 2, 38, 1),
    Sketcher.Constraint("Coincident", 38, 2, 39, 1),
    Sketcher.Constraint("Coincident", 39, 2, 40, 1),
    Sketcher.Constraint("Coincident", 40, 2, 41, 1),
    Sketcher.Constraint("Coincident", 41, 2, 42, 1),
    Sketcher.Constraint("Coincident", 42, 2, 43, 1),
    Sketcher.Constraint("Coincident", 43, 2, 44, 1),
    Sketcher.Constraint("Coincident", 44, 2, 45, 1),
    Sketcher.Constraint("Coincident", 45, 2, 46, 1),
    Sketcher.Constraint("Coincident", 46, 2, 47, 1),
    Sketcher.Constraint("Coincident", 47, 2, 48, 1),
    Sketcher.Constraint("Coincident", 48, 2, 49, 1),
    Sketcher.Constraint("Coincident", 49, 2, 50, 1),
    Sketcher.Constraint("Coincident", 50, 2, 0, 1),
    Sketcher.Constraint("Vertical", 0),
    Sketcher.Constraint("Vertical", 26),
    Sketcher.Constraint("Parallel", 1, 27),
    Sketcher.Constraint("Parallel", 2, 28),
    Sketcher.Constraint("Parallel", 3, 29),
    Sketcher.Constraint("Parallel", 4, 30),
    Sketcher.Constraint("Parallel", 5, 31),
    Sketcher.Constraint("Parallel", 6, 32),
    Sketcher.Constraint("Parallel", 7, 33),
    Sketcher.Constraint("Parallel", 8, 34),
    Sketcher.Constraint("Parallel", 9, 35),
    Sketcher.Constraint("Parallel", 10, 36),
    Sketcher.Constraint("Parallel", 11, 37),
    Sketcher.Constraint("Parallel", 12, 38),
    Sketcher.Constraint("Parallel", 13, 39),
    Sketcher.Constraint("Parallel", 14, 40),
    Sketcher.Constraint("Parallel", 15, 41),
    Sketcher.Constraint("Parallel", 16, 42),
    Sketcher.Constraint("Parallel", 17, 43),
    Sketcher.Constraint("Parallel", 18, 44),
    Sketcher.Constraint("Parallel", 20, 45),
    Sketcher.Constraint("Parallel", 21, 46),
    Sketcher.Constraint("Parallel", 22, 47),
    Sketcher.Constraint("Parallel", 23, 48),
    Sketcher.Constraint("Parallel", 24, 49),
    Sketcher.Constraint("Parallel", 25, 50),
    Sketcher.Constraint("Horizontal", 11, 2, 13, 2),
    Sketcher.Constraint("Horizontal", 10, 2, 14, 2),
    Sketcher.Constraint("Horizontal", 9, 2, 15, 2),
    Sketcher.Constraint("Horizontal", 8, 2, 16, 2),
    Sketcher.Constraint("Horizontal", 7, 2, 17, 2),
    Sketcher.Constraint("Horizontal", 5, 2, 20, 2),
    Sketcher.Constraint("Horizontal", 4, 2, 21, 2),
    Sketcher.Constraint("Horizontal", 3, 2, 22, 2),
    Sketcher.Constraint("Horizontal", 2, 2, 23, 2),
    Sketcher.Constraint("Horizontal", 1, 2, 24, 2),
    Sketcher.Constraint("Horizontal", 0, 2, 25, 2),
    Sketcher.Constraint("Horizontal", 37, 2, 39, 2),
    Sketcher.Constraint("Horizontal", 36, 2, 40, 2),
    Sketcher.Constraint("Horizontal", 35, 2, 41, 2),
    Sketcher.Constraint("Horizontal", 34, 2, 42, 2),
    Sketcher.Constraint("Horizontal", 33, 2, 43, 2),
    Sketcher.Constraint("Horizontal", 32, 2, 44, 2),
    Sketcher.Constraint("Horizontal", 31, 2, 45, 2),
    Sketcher.Constraint("Horizontal", 30, 2, 46, 2),
    Sketcher.Constraint("Horizontal", 29, 2, 47, 2),
    Sketcher.Constraint("Horizontal", 28, 2, 48, 2),
    Sketcher.Constraint("Horizontal", 27, 2, 49, 2),
    Sketcher.Constraint("Horizontal", 26, 2, 50, 2),
    Sketcher.Constraint("Vertical", 24, 2, 27, 2),
    Sketcher.Constraint("Vertical", 23, 2, 28, 2),
    Sketcher.Constraint("Vertical", 22, 2, 29, 2),
    Sketcher.Constraint("Vertical", 21, 2, 30, 2),
    Sketcher.Constraint("Vertical", 20, 2, 31, 2),
    Sketcher.Constraint("Vertical", 17, 2, 33, 2),
    Sketcher.Constraint("Vertical", 16, 2, 34, 2),
    Sketcher.Constraint("Vertical", 15, 2, 35, 2),
    Sketcher.Constraint("Vertical", 14, 2, 36, 2),
    Sketcher.Constraint("Vertical", 13, 2, 37, 2),
    Sketcher.Constraint("Vertical", 12, 2, 38, 2),
    Sketcher.Constraint("Vertical", 11, 2, 39, 2),
    Sketcher.Constraint("Vertical", 10, 2, 40, 2),
    Sketcher.Constraint("Vertical", 9, 2, 41, 2),
    Sketcher.Constraint("Vertical", 8, 2, 42, 2),
    Sketcher.Constraint("Vertical", 7, 2, 43, 2),
    Sketcher.Constraint("Vertical", 6, 2, 44, 2),
    Sketcher.Constraint("Vertical", 5, 2, 45, 2),
    Sketcher.Constraint("Vertical", 4, 2, 46, 2),
    Sketcher.Constraint("Vertical", 3, 2, 47, 2),
    Sketcher.Constraint("Vertical", 2, 2, 48, 2),
    Sketcher.Constraint("Vertical", 1, 2, 49, 2),
    Sketcher.Constraint("Equal", 1, 2),
    Sketcher.Constraint("Equal", 2, 3),
    Sketcher.Constraint("Equal", 3, 4),
    Sketcher.Constraint("Equal", 4, 5),
    Sketcher.Constraint("Equal", 5, 6),
    Sketcher.Constraint("Equal", 6, 7),
    Sketcher.Constraint("Equal", 7, 8),
    Sketcher.Constraint("Equal", 8, 9),
    Sketcher.Constraint("Equal", 9, 10),
    Sketcher.Constraint("Equal", 10, 11),
    Sketcher.Constraint("Equal", 11, 12),
    Sketcher.Constraint("Equal", 31, 32),
    Sketcher.Constraint("Equal", 32, 33),
    Sketcher.Constraint("Angle", 5, Q("-126.000009 deg")),
    Sketcher.Constraint("Angle", 10, Q("-161.999984 deg")),
    Sketcher.Constraint("Angle", 1, Q("-97.199996 deg")),
    Sketcher.Constraint("Angle", 2, Q("-104.399992 deg")),
    Sketcher.Constraint("Angle", 3, Q("-111.599992 deg")),
    Sketcher.Constraint("Angle", 4, Q("-118.800012 deg")),
    Sketcher.Constraint("Angle", 6, Q("-133.199984 deg")),
    Sketcher.Constraint("Angle", 7, Q("-140.4 deg")),
    Sketcher.Constraint("Angle", 8, Q("-147.600011 deg")),
    Sketcher.Constraint("Angle", 9, Q("-154.8 deg")),
    Sketcher.Constraint("Angle", 11, Q("-169.200013 deg")),
    Sketcher.Constraint("Angle", 12, Q("-176.400006 deg")),
    Sketcher.Constraint("DistanceY", 12, 2, -1, 1, Q("1.7599999 in")),
    Sketcher.Constraint("Radius", 19, Q("8.869899 mm")),
    Sketcher.Constraint("DistanceX", 10, 2, -1, 1, Q("5.103801 mm")),
    Sketcher.Constraint("DistanceY", 32, 2, -1, 1, Q("11.0696 mm")),
    Sketcher.Constraint("DistanceX", 19, 3, 3, 2, Q("36.0486 mm")),
    Sketcher.Constraint("DistanceY", 5, 2, 0, 2, Q("11.178601 mm")),
    Sketcher.Constraint("DistanceY", 19, 3, 16, 2, Q("4.3574 mm")),
])
pad7 = body.newObject("PartDesign::Pad", "Pad006")
pad7.Profile = sketch7
pad7.Length = Q("1 in")
pad7.Reversed = True

doc.recompute()
